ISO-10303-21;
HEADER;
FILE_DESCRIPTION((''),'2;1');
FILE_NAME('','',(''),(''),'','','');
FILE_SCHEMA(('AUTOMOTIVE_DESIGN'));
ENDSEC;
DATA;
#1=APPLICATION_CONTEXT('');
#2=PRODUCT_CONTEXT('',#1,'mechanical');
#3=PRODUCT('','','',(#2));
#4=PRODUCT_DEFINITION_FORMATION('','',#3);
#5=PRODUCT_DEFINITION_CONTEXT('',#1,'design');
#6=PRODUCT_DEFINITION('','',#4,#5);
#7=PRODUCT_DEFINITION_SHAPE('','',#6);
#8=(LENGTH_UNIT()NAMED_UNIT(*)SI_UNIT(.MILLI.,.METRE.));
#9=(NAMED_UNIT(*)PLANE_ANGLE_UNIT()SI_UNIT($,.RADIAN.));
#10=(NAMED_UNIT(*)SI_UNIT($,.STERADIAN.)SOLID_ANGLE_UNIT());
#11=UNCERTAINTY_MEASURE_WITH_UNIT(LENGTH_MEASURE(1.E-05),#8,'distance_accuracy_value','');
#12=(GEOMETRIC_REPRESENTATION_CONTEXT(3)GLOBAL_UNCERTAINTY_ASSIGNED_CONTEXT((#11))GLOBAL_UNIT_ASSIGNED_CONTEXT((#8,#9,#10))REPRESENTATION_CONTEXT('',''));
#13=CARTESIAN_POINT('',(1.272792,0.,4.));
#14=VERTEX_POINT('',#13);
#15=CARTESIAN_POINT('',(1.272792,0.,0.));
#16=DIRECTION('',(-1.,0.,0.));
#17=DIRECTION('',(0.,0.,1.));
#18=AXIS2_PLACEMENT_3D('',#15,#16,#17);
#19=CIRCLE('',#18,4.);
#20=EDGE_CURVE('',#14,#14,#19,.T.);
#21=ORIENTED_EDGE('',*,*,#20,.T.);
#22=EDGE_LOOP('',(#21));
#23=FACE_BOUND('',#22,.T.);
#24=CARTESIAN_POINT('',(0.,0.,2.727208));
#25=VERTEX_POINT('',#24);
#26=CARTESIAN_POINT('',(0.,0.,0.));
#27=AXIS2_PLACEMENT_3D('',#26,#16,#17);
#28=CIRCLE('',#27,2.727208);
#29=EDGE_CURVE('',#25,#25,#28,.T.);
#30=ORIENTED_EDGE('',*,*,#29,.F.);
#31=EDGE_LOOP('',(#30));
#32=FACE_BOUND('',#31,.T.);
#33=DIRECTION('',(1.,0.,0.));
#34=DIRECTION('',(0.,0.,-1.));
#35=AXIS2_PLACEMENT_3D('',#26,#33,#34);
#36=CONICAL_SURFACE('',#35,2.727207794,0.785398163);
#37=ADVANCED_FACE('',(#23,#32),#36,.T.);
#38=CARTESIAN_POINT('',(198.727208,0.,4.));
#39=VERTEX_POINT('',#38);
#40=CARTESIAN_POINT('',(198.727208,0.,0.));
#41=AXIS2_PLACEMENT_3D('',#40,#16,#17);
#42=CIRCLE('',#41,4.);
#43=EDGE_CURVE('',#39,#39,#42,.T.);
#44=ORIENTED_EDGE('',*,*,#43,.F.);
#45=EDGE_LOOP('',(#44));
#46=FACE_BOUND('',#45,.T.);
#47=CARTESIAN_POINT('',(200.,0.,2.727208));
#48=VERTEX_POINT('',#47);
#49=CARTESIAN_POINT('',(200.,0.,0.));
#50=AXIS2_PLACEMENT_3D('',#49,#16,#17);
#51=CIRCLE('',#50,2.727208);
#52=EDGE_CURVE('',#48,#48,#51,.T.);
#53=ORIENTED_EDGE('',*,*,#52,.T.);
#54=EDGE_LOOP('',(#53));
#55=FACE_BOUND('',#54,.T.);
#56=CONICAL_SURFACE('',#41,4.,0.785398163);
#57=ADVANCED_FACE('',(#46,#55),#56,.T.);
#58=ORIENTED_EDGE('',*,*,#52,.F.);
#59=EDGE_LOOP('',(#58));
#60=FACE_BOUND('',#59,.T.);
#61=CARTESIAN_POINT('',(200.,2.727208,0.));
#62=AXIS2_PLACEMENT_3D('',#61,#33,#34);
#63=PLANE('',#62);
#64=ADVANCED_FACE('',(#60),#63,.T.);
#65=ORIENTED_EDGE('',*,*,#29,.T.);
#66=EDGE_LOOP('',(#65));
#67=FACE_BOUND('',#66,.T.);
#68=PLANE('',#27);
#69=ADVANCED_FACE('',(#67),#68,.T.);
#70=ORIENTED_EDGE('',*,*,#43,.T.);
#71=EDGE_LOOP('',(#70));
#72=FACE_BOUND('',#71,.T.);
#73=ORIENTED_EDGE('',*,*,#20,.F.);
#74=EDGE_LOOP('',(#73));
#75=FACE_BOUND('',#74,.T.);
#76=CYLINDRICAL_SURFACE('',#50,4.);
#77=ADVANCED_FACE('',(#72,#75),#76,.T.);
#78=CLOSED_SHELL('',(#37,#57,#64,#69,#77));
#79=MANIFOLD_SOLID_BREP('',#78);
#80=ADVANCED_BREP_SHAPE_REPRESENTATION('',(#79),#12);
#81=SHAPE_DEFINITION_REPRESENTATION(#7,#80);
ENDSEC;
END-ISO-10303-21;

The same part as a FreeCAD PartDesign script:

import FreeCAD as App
import Part
import Sketcher

V = App.Vector

doc = App.newDocument("Part")
body = doc.addObject("PartDesign::Body", "Body")

# Sketch on XY plane
sketch1 = body.newObject("Sketcher::SketchObject", "Sketch")
sketch1.AttachmentSupport = (doc.getObject("XY_Plane"), [""])
sketch1.MapMode = "FlatFace"
sketch1.addGeometry([
    Part.LineSegment(V(200, 2.727208, 0), V(200, 0, 0)),  # 0
    Part.LineSegment(V(200, 0, 0), V(0, 0, 0)),  # 1
    Part.LineSegment(V(0, 0, 0), V(0, 2.727208, 0)),  # 2
    Part.LineSegment(V(0, 2.727208, 0), V(1.272792, 4, 0)),  # 3
    Part.LineSegment(V(1.272792, 4, 0), V(198.727208, 4, 0)),  # 4
    Part.LineSegment(V(198.727208, 4, 0), V(200, 2.727208, 0)),  # 5
], False)
sketch1.addConstraint([
    Sketcher.Constraint("Coincident", 0, 2, 1, 1),
    Sketcher.Constraint("Coincident", 1, 2, 2, 1),
    Sketcher.Constraint("Coincident", 2, 2, 3, 1),
    Sketcher.Constraint("Coincident", 3, 2, 4, 1),
    Sketcher.Constraint("Coincident", 4, 2, 5, 1),
    Sketcher.Constraint("Coincident", 5, 2, 0, 1),
    Sketcher.Constraint("Vertical", 0),
    Sketcher.Constraint("Horizontal", 1),
    Sketcher.Constraint("Vertical", 2),
    Sketcher.Constraint("Horizontal", 4),
    Sketcher.Constraint("Coincident", 1, 2, -1, 1),
    Sketcher.Constraint("Perpendicular", 3, 5),
    Sketcher.Constraint("Horizontal", 2, 2, 5, 2),
    Sketcher.Constraint("Equal", 3, 5),
    Sketcher.Constraint("DistanceX", 1, 2, 1, 1, 200.0),
    Sketcher.Constraint("DistanceY", -1, 1, 3, 2, 4.0),
    Sketcher.Constraint("Distance", 3, 1.8),
])
revolution = body.newObject("PartDesign::Revolution", "Revolution")
revolution.Profile = sketch1
revolution.ReferenceAxis = (sketch1, ["H_Axis"])
revolution.Angle = 360

doc.recompute()
